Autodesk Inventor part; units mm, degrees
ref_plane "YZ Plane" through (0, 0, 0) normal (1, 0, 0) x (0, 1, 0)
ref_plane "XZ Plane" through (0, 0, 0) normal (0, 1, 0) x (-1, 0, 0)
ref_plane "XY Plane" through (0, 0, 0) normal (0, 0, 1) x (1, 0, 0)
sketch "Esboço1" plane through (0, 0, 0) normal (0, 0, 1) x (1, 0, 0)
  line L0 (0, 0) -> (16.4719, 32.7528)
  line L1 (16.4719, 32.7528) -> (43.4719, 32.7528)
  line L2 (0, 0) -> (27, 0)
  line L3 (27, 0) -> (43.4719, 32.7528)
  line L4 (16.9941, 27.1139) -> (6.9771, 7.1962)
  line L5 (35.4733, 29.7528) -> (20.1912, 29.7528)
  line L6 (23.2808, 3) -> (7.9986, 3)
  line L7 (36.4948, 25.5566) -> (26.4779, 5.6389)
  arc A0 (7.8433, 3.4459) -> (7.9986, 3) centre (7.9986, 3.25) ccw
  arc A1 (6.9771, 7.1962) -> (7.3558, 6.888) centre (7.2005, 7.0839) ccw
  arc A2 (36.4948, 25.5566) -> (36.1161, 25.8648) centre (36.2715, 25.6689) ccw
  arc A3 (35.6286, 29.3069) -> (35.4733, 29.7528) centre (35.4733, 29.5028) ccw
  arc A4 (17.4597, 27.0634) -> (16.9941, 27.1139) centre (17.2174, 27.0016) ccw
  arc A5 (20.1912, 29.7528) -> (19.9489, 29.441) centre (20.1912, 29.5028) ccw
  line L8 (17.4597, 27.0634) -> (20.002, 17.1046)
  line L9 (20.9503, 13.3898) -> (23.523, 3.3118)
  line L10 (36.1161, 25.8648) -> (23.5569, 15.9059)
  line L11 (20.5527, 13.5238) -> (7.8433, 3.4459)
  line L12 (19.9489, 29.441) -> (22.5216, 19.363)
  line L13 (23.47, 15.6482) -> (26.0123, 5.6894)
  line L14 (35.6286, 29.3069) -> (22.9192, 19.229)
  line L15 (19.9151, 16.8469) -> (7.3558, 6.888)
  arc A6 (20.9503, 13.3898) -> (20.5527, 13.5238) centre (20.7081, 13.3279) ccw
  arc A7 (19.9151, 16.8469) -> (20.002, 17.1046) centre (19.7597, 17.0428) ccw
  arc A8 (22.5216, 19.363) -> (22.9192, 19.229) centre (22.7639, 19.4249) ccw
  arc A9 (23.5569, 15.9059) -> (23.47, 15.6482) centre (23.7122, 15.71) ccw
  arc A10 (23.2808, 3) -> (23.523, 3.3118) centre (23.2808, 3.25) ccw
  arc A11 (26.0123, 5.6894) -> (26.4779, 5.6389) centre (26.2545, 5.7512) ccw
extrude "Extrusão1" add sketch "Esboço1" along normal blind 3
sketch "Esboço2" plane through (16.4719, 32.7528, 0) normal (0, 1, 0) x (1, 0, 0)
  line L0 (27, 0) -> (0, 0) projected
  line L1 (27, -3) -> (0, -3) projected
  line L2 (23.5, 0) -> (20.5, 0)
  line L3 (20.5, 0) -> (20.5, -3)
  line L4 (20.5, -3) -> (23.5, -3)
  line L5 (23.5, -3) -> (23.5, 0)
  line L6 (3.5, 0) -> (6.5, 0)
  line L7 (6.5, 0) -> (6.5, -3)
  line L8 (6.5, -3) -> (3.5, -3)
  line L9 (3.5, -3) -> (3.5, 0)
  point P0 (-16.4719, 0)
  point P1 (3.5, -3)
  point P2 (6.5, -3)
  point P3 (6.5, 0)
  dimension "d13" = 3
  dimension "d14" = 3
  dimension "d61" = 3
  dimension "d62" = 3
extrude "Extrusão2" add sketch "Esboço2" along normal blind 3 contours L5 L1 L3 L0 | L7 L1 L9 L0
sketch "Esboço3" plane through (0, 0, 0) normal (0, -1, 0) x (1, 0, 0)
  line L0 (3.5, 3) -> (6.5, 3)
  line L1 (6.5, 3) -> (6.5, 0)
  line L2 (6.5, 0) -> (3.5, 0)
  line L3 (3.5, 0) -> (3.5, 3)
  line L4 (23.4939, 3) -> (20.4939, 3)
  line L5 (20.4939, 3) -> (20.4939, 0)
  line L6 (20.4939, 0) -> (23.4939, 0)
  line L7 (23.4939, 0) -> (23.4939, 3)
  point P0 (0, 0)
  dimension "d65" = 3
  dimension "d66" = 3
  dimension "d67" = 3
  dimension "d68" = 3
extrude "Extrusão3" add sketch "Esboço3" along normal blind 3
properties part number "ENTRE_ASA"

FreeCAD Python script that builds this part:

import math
import FreeCAD as App
import Part
import Sketcher
Q = App.Units.Quantity

doc = App.newDocument("Part")
body = doc.addObject("PartDesign::Body", "Body")

# Sketch on XY plane
sketch1 = body.newObject("Sketcher::SketchObject", "Sketch")
sketch1.AttachmentSupport = (doc.getObject("XY_Plane"), [""])
sketch1.MapMode = "FlatFace"
sketch1.addGeometry([
    Part.LineSegment(App.Vector(16.47, 32.75, 0), App.Vector(0, 0, 0)),  # 0
    Part.LineSegment(App.Vector(0, 0, 0), App.Vector(27, 0, 0)),  # 1
    Part.LineSegment(App.Vector(27, 0, 0), App.Vector(43.47, 32.75, 0)),  # 2
    Part.LineSegment(App.Vector(43.47, 32.75, 0), App.Vector(16.47, 32.75, 0)),  # 3
    Part.ArcOfCircle(Part.Circle(App.Vector(23.28, 3.25, 0), App.Vector(0, 0, 1), 0.25), math.radians(-90), math.radians(14)),  # 4
    Part.LineSegment(App.Vector(23.28, 3, 0), App.Vector(8, 3, 0)),  # 5
    Part.ArcOfCircle(Part.Circle(App.Vector(8, 3.25, 0), App.Vector(0, 0, 1), 0.25), math.radians(128), math.radians(270)),  # 6
    Part.LineSegment(App.Vector(7.84, 3.45, 0), App.Vector(20.55, 13.52, 0)),  # 7
    Part.ArcOfCircle(Part.Circle(App.Vector(20.71, 13.33, 0), App.Vector(0, 0, 1), 0.25), math.radians(14), math.radians(128)),  # 8
    Part.LineSegment(App.Vector(20.95, 13.39, 0), App.Vector(23.52, 3.31, 0)),  # 9
    Part.ArcOfCircle(Part.Circle(App.Vector(36.27, 25.67, 0), App.Vector(0, 0, 1), 0.25), math.radians(-27), math.radians(128)),  # 10
    Part.LineSegment(App.Vector(36.49, 25.56, 0), App.Vector(26.48, 5.64, 0)),  # 11
    Part.ArcOfCircle(Part.Circle(App.Vector(26.25, 5.75, 0), App.Vector(0, 0, 1), 0.25), math.radians(-166), math.radians(-27)),  # 12
    Part.LineSegment(App.Vector(26.01, 5.69, 0), App.Vector(23.47, 15.65, 0)),  # 13
    Part.ArcOfCircle(Part.Circle(App.Vector(23.71, 15.71, 0), App.Vector(0, 0, 1), 0.25), math.radians(128), math.radians(194)),  # 14
    Part.LineSegment(App.Vector(23.56, 15.91, 0), App.Vector(36.12, 25.86, 0)),  # 15
    Part.LineSegment(App.Vector(6.98, 7.2, 0), App.Vector(16.99, 27.11, 0)),  # 16
    Part.ArcOfCircle(Part.Circle(App.Vector(17.22, 27, 0), App.Vector(0, 0, 1), 0.25), math.radians(14), math.radians(153)),  # 17
    Part.LineSegment(App.Vector(17.46, 27.06, 0), App.Vector(20, 17.1, 0)),  # 18
    Part.ArcOfCircle(Part.Circle(App.Vector(19.76, 17.04, 0), App.Vector(0, 0, 1), 0.25), math.radians(-52), math.radians(14)),  # 19
    Part.LineSegment(App.Vector(19.92, 16.85, 0), App.Vector(7.36, 6.89, 0)),  # 20
    Part.ArcOfCircle(Part.Circle(App.Vector(7.2, 7.08, 0), App.Vector(0, 0, 1), 0.25), math.radians(153), math.radians(308)),  # 21
    Part.LineSegment(App.Vector(20.19, 29.75, 0), App.Vector(35.47, 29.75, 0)),  # 22
    Part.ArcOfCircle(Part.Circle(App.Vector(35.47, 29.5, 0), App.Vector(0, 0, 1), 0.25), math.radians(-52), math.radians(90)),  # 23
    Part.LineSegment(App.Vector(35.63, 29.31, 0), App.Vector(22.92, 19.23, 0)),  # 24
    Part.ArcOfCircle(Part.Circle(App.Vector(22.76, 19.42, 0), App.Vector(0, 0, 1), 0.25), math.radians(-166), math.radians(-52)),  # 25
    Part.LineSegment(App.Vector(22.52, 19.36, 0), App.Vector(19.95, 29.44, 0)),  # 26
    Part.ArcOfCircle(Part.Circle(App.Vector(20.19, 29.5, 0), App.Vector(0, 0, 1), 0.25), math.radians(90), math.radians(194)),  # 27
], False)
sketch1.addConstraint([
    Sketcher.Constraint("Coincident", 0, 2, 1, 1),
    Sketcher.Constraint("Coincident", 1, 2, 2, 1),
    Sketcher.Constraint("Coincident", 2, 2, 3, 1),
    Sketcher.Constraint("Coincident", 3, 2, 0, 1),
    Sketcher.Constraint("Tangent", 4, 1, 5, 1),
    Sketcher.Constraint("Tangent", 5, 2, 6, 2),
    Sketcher.Constraint("Tangent", 6, 1, 7, 1),
    Sketcher.Constraint("Tangent", 7, 2, 8, 2),
    Sketcher.Constraint("Tangent", 8, 1, 9, 1),
    Sketcher.Constraint("Tangent", 9, 2, 4, 2),
    Sketcher.Constraint("Tangent", 10, 1, 11, 1),
    Sketcher.Constraint("Tangent", 11, 2, 12, 2),
    Sketcher.Constraint("Tangent", 12, 1, 13, 1),
    Sketcher.Constraint("Tangent", 13, 2, 14, 2),
    Sketcher.Constraint("Tangent", 14, 1, 15, 1),
    Sketcher.Constraint("Tangent", 15, 2, 10, 2),
    Sketcher.Constraint("Tangent", 16, 2, 17, 2),
    Sketcher.Constraint("Tangent", 17, 1, 18, 1),
    Sketcher.Constraint("Tangent", 18, 2, 19, 2),
    Sketcher.Constraint("Tangent", 19, 1, 20, 1),
    Sketcher.Constraint("Tangent", 20, 2, 21, 2),
    Sketcher.Constraint("Tangent", 21, 1, 16, 1),
    Sketcher.Constraint("Tangent", 22, 2, 23, 2),
    Sketcher.Constraint("Tangent", 23, 1, 24, 1),
    Sketcher.Constraint("Tangent", 24, 2, 25, 2),
    Sketcher.Constraint("Tangent", 25, 1, 26, 1),
    Sketcher.Constraint("Tangent", 26, 2, 27, 2),
    Sketcher.Constraint("Tangent", 27, 1, 22, 1),
    Sketcher.Constraint("Horizontal", 1),
    Sketcher.Constraint("Horizontal", 3),
    Sketcher.Constraint("Horizontal", 5),
    Sketcher.Constraint("Horizontal", 22),
    Sketcher.Constraint("Coincident", 0, 2, -1, 1),
    Sketcher.Constraint("Equal", 4, 6),
    Sketcher.Constraint("Equal", 6, 8),
    Sketcher.Constraint("Equal", 8, 10),
    Sketcher.Constraint("Equal", 10, 12),
    Sketcher.Constraint("Equal", 12, 14),
    Sketcher.Constraint("Equal", 14, 17),
    Sketcher.Constraint("Equal", 17, 19),
    Sketcher.Constraint("Equal", 19, 21),
    Sketcher.Constraint("Equal", 21, 23),
    Sketcher.Constraint("Equal", 23, 25),
    Sketcher.Constraint("Equal", 25, 27),
    Sketcher.Constraint("Parallel", 0, 2),
    Sketcher.Constraint("Parallel", 2, 11),
    Sketcher.Constraint("Parallel", 9, 13),
    Sketcher.Constraint("Parallel", 7, 15),
    Sketcher.Constraint("Parallel", 11, 16),
    Sketcher.Constraint("Parallel", 13, 18),
    Sketcher.Constraint("Parallel", 15, 20),
    Sketcher.Constraint("Parallel", 20, 24),
    Sketcher.Constraint("Parallel", 18, 26),
    Sketcher.Constraint("Equal", 5, 22),
    Sketcher.Constraint("Equal", 11, 16),
    Sketcher.Constraint("DistanceX", 1, 1, 1, 2, 27.0),
    Sketcher.Constraint("Radius", 4, 0.25),
    Sketcher.Constraint("DistanceY", -1, 1, 4, 1, 3.0),
    Sketcher.Constraint("DistanceY", 22, 2, 2, 2, 3.0),
    Sketcher.Constraint("Angle", 9, Q("-75.6794 deg")),
    Sketcher.Constraint("DistanceX", 22, 1, 22, 2, 15.282),
    Sketcher.Constraint("DistanceY", -1, 1, 14, 3, 15.71),
    Sketcher.Constraint("DistanceX", -1, 1, 13, 2, 23.47),
    Sketcher.Constraint("DistanceY", 19, 3, 23, 3, 12.46),
    Sketcher.Constraint("DistanceY", 25, 3, 15, 2, 6.44),
    Sketcher.Constraint("DistanceX", -1, 1, 8, 3, 20.708),
    Sketcher.Constraint("DistanceY", -1, 1, 8, 3, 13.328),
    Sketcher.Constraint("DistanceY", -1, 1, 10, 3, 25.669),
    Sketcher.Constraint("DistanceX", -1, 1, 25, 3, 22.764),
    Sketcher.Constraint("DistanceX", -1, 1, 2, 2, 43.472),
    Sketcher.Constraint("DistanceX", -1, 1, 16, 2, 16.994),
])
pad1 = body.newObject("PartDesign::Pad", "Pad")
pad1.Profile = sketch1
pad1.Length = 3

# Sketch on XZ plane
sketch2 = body.newObject("Sketcher::SketchObject", "Sketch001")
sketch2.AttachmentSupport = (doc.getObject("XZ_Plane"), [""])
sketch2.MapMode = "FlatFace"
sketch2.AttachmentOffset = App.Placement(App.Vector(0, 0, -32.7528), App.Rotation())
sketch2.addGeometry([
    Part.LineSegment(App.Vector(40, 3, 0), App.Vector(40, 0, 0)),  # 0
    Part.LineSegment(App.Vector(40, 0, 0), App.Vector(37, 0, 0)),  # 1
    Part.LineSegment(App.Vector(37, 0, 0), App.Vector(37, 3, 0)),  # 2
    Part.LineSegment(App.Vector(37, 3, 0), App.Vector(40, 3, 0)),  # 3
    Part.LineSegment(App.Vector(23, 3, 0), App.Vector(23, 0, 0)),  # 4
    Part.LineSegment(App.Vector(23, 0, 0), App.Vector(20, 0, 0)),  # 5
    Part.LineSegment(App.Vector(20, 0, 0), App.Vector(20, 3, 0)),  # 6
    Part.LineSegment(App.Vector(20, 3, 0), App.Vector(23, 3, 0)),  # 7
], False)
sketch2.addConstraint([
    Sketcher.Constraint("Coincident", 0, 2, 1, 1),
    Sketcher.Constraint("Coincident", 1, 2, 2, 1),
    Sketcher.Constraint("Coincident", 2, 2, 3, 1),
    Sketcher.Constraint("Coincident", 3, 2, 0, 1),
    Sketcher.Constraint("Coincident", 4, 2, 5, 1),
    Sketcher.Constraint("Coincident", 5, 2, 6, 1),
    Sketcher.Constraint("Coincident", 6, 2, 7, 1),
    Sketcher.Constraint("Coincident", 7, 2, 4, 1),
    Sketcher.Constraint("Vertical", 0),
    Sketcher.Constraint("Horizontal", 1),
    Sketcher.Constraint("Vertical", 2),
    Sketcher.Constraint("Horizontal", 3),
    Sketcher.Constraint("Vertical", 4),
    Sketcher.Constraint("Horizontal", 5),
    Sketcher.Constraint("Vertical", 6),
    Sketcher.Constraint("Horizontal", 7),
    Sketcher.Constraint("PointOnObject", 0, 2, -1),
    Sketcher.Constraint("PointOnObject", 4, 2, -1),
    Sketcher.Constraint("Horizontal", 3, 2, 6, 2),
    Sketcher.Constraint("Equal", 3, 5),
    Sketcher.Constraint("Equal", 7, 0),
    Sketcher.Constraint("DistanceX", 1, 2, 1, 1, 3.0),
    Sketcher.Constraint("DistanceX", 4, 2, 1, 2, 14.0),
    Sketcher.Constraint("DistanceX", -1, 1, 0, 2, 39.972),
])
pad2 = body.newObject("PartDesign::Pad", "Pad001")
pad2.Profile = sketch2
pad2.Length = 3
pad2.Reversed = True

# Sketch on XZ plane
sketch3 = body.newObject("Sketcher::SketchObject", "Sketch002")
sketch3.AttachmentSupport = (doc.getObject("XZ_Plane"), [""])
sketch3.MapMode = "FlatFace"
sketch3.addGeometry([
    Part.LineSegment(App.Vector(6.5, 3, 0), App.Vector(3.5, 3, 0)),  # 0
    Part.LineSegment(App.Vector(3.5, 3, 0), App.Vector(3.5, 0, 0)),  # 1
    Part.LineSegment(App.Vector(3.5, 0, 0), App.Vector(6.5, 0, 0)),  # 2
    Part.LineSegment(App.Vector(6.5, 0, 0), App.Vector(6.5, 3, 0)),  # 3
    Part.LineSegment(App.Vector(23.5, 0, 0), App.Vector(23.5, 3, 0)),  # 4
    Part.LineSegment(App.Vector(23.5, 3, 0), App.Vector(20.5, 3, 0)),  # 5
    Part.LineSegment(App.Vector(20.5, 3, 0), App.Vector(20.5, 0, 0)),  # 6
    Part.LineSegment(App.Vector(20.5, 0, 0), App.Vector(23.5, 0, 0)),  # 7
], False)
sketch3.addConstraint([
    Sketcher.Constraint("Coincident", 0, 2, 1, 1),
    Sketcher.Constraint("Coincident", 1, 2, 2, 1),
    Sketcher.Constraint("Coincident", 2, 2, 3, 1),
    Sketcher.Constraint("Coincident", 3, 2, 0, 1),
    Sketcher.Constraint("Coincident", 4, 2, 5, 1),
    Sketcher.Constraint("Coincident", 5, 2, 6, 1),
    Sketcher.Constraint("Coincident", 6, 2, 7, 1),
    Sketcher.Constraint("Coincident", 7, 2, 4, 1),
    Sketcher.Constraint("Horizontal", 0),
    Sketcher.Constraint("Vertical", 1),
    Sketcher.Constraint("Horizontal", 2),
    Sketcher.Constraint("Vertical", 3),
    Sketcher.Constraint("Vertical", 4),
    Sketcher.Constraint("Horizontal", 5),
    Sketcher.Constraint("Vertical", 6),
    Sketcher.Constraint("Horizontal", 7),
    Sketcher.Constraint("PointOnObject", 1, 2, -1),
    Sketcher.Constraint("PointOnObject", 6, 2, -1),
    Sketcher.Constraint("Horizontal", 3, 2, 4, 2),
    Sketcher.Constraint("Equal", 2, 5),
    Sketcher.Constraint("Equal", 7, 1),
    Sketcher.Constraint("DistanceX", 0, 2, 0, 1, 3.0),
    Sketcher.Constraint("DistanceX", -1, 1, 0, 2, 3.5),
    Sketcher.Constraint("DistanceX", -1, 1, 4, 2, 23.494),
])
pad3 = body.newObject("PartDesign::Pad", "Pad002")
pad3.Profile = sketch3
pad3.Length = 3

doc.recompute()
